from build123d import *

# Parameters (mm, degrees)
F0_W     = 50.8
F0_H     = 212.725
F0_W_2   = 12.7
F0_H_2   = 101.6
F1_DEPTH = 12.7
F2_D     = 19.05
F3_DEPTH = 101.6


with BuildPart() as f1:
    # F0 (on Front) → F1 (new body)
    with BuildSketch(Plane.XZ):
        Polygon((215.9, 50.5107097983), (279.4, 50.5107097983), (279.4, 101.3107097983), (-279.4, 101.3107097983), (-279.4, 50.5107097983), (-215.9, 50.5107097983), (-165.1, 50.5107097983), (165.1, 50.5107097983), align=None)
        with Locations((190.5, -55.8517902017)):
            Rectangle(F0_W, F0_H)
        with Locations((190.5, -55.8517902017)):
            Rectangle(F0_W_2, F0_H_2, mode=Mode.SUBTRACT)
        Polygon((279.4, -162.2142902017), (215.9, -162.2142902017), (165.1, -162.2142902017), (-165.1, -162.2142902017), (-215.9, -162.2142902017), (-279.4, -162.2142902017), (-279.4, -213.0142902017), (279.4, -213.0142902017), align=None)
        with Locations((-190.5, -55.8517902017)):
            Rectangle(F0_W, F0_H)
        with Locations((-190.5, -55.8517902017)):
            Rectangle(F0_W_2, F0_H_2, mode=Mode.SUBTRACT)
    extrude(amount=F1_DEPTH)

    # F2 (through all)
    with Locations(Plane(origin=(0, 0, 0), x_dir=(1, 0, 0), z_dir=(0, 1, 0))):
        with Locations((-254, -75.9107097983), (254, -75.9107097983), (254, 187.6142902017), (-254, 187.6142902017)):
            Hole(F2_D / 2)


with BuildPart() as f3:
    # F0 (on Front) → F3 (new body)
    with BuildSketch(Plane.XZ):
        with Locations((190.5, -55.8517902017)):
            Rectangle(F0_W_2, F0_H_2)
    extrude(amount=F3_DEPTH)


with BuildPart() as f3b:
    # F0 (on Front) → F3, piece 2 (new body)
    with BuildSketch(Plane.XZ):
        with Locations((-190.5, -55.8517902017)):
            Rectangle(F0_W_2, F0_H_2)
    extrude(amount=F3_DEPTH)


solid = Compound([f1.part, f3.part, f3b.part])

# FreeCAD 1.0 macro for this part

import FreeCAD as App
import Part
import Sketcher

V = App.Vector
Q = App.Units.Quantity

doc = App.newDocument("Part")
params = doc.addObject("Spreadsheet::Sheet", "Params")
for row, (alias, value) in enumerate([
    ("sketch1_width", "22 in"),
    ("sketch1_width2", "13 in"),
    ("sketch1_height", "2 in"),
    ("sketch1_height2", "4 in"),
    ("sketch1_width3", "2.5 in"),
    ("pad1_length", "0.5 in"),
    ("sketch2_diameter", "0.75 in"),
    ("hole_diameter", "0.75 in"),
    ("sketch3_height", "4 in"),
    ("sketch3_width", "0.5 in"),
    ("pad2_length", "4 in"),
    ("sketch4_height", "4 in"),
    ("sketch4_width", "0.5 in"),
    ("pad3_length", "4 in"),
], start=1):
    params.set(f"A{row}", alias)
    params.set(f"B{row}", "=" + value)
    params.setAlias(f"B{row}", alias)

body = doc.addObject("PartDesign::Body", "Body")

# Sketch on XZ plane
sketch1 = doc.addObject("Sketcher::SketchObject", "Sketch")
body.addObject(sketch1)
sketch1.AttachmentSupport = (doc.XZ_Plane, [""])
sketch1.MapMode = "FlatFace"
sketch1.addGeometry(Part.LineSegment(V(279, 51, 0), V(279, 101, 0)), False)
sketch1.addGeometry(Part.LineSegment(V(279, 101, 0), V(-279, 101, 0)), False)
sketch1.addGeometry(Part.LineSegment(V(-279, 101, 0), V(-279, 51, 0)), False)
sketch1.addGeometry(Part.LineSegment(V(-279, 51, 0), V(-216, 51, 0)), False)
sketch1.addGeometry(Part.LineSegment(V(-216, 51, 0), V(-216, -162, 0)), False)
sketch1.addGeometry(Part.LineSegment(V(-216, -162, 0), V(-279, -162, 0)), False)
sketch1.addGeometry(Part.LineSegment(V(-279, -162, 0), V(-279, -213, 0)), False)
sketch1.addGeometry(Part.LineSegment(V(-279, -213, 0), V(279, -213, 0)), False)
sketch1.addGeometry(Part.LineSegment(V(279, -213, 0), V(279, -162, 0)), False)
sketch1.addGeometry(Part.LineSegment(V(279, -162, 0), V(216, -162, 0)), False)
sketch1.addGeometry(Part.LineSegment(V(216, -162, 0), V(216, 51, 0)), False)
sketch1.addGeometry(Part.LineSegment(V(216, 51, 0), V(279, 51, 0)), False)
sketch1.addGeometry(Part.LineSegment(V(-184, -107, 0), V(-197, -107, 0)), False)
sketch1.addGeometry(Part.LineSegment(V(-197, -107, 0), V(-197, -5, 0)), False)
sketch1.addGeometry(Part.LineSegment(V(-197, -5, 0), V(-184, -5, 0)), False)
sketch1.addGeometry(Part.LineSegment(V(-184, -5, 0), V(-184, -107, 0)), False)
sketch1.addGeometry(Part.LineSegment(V(-165, 51, 0), V(165, 51, 0)), False)
sketch1.addGeometry(Part.LineSegment(V(165, 51, 0), V(165, -162, 0)), False)
sketch1.addGeometry(Part.LineSegment(V(165, -162, 0), V(-165, -162, 0)), False)
sketch1.addGeometry(Part.LineSegment(V(-165, -162, 0), V(-165, 51, 0)), False)
sketch1.addGeometry(Part.LineSegment(V(197, -107, 0), V(184, -107, 0)), False)
sketch1.addGeometry(Part.LineSegment(V(184, -107, 0), V(184, -5, 0)), False)
sketch1.addGeometry(Part.LineSegment(V(184, -5, 0), V(197, -5, 0)), False)
sketch1.addGeometry(Part.LineSegment(V(197, -5, 0), V(197, -107, 0)), False)
sketch1.addConstraint(Sketcher.Constraint("Coincident", 0, 2, 1, 1))
sketch1.addConstraint(Sketcher.Constraint("Coincident", 1, 2, 2, 1))
sketch1.addConstraint(Sketcher.Constraint("Coincident", 2, 2, 3, 1))
sketch1.addConstraint(Sketcher.Constraint("Coincident", 3, 2, 4, 1))
sketch1.addConstraint(Sketcher.Constraint("Coincident", 4, 2, 5, 1))
sketch1.addConstraint(Sketcher.Constraint("Coincident", 5, 2, 6, 1))
sketch1.addConstraint(Sketcher.Constraint("Coincident", 6, 2, 7, 1))
sketch1.addConstraint(Sketcher.Constraint("Coincident", 7, 2, 8, 1))
sketch1.addConstraint(Sketcher.Constraint("Coincident", 8, 2, 9, 1))
sketch1.addConstraint(Sketcher.Constraint("Coincident", 9, 2, 10, 1))
sketch1.addConstraint(Sketcher.Constraint("Coincident", 10, 2, 11, 1))
sketch1.addConstraint(Sketcher.Constraint("Coincident", 11, 2, 0, 1))
sketch1.addConstraint(Sketcher.Constraint("Coincident", 12, 2, 13, 1))
sketch1.addConstraint(Sketcher.Constraint("Coincident", 13, 2, 14, 1))
sketch1.addConstraint(Sketcher.Constraint("Coincident", 14, 2, 15, 1))
sketch1.addConstraint(Sketcher.Constraint("Coincident", 15, 2, 12, 1))
sketch1.addConstraint(Sketcher.Constraint("Coincident", 16, 2, 17, 1))
sketch1.addConstraint(Sketcher.Constraint("Coincident", 17, 2, 18, 1))
sketch1.addConstraint(Sketcher.Constraint("Coincident", 18, 2, 19, 1))
sketch1.addConstraint(Sketcher.Constraint("Coincident", 19, 2, 16, 1))
sketch1.addConstraint(Sketcher.Constraint("Coincident", 20, 2, 21, 1))
sketch1.addConstraint(Sketcher.Constraint("Coincident", 21, 2, 22, 1))
sketch1.addConstraint(Sketcher.Constraint("Coincident", 22, 2, 23, 1))
sketch1.addConstraint(Sketcher.Constraint("Coincident", 23, 2, 20, 1))
sketch1.addConstraint(Sketcher.Constraint("Vertical", 0))
sketch1.addConstraint(Sketcher.Constraint("Horizontal", 1))
sketch1.addConstraint(Sketcher.Constraint("Vertical", 2))
sketch1.addConstraint(Sketcher.Constraint("Horizontal", 3))
sketch1.addConstraint(Sketcher.Constraint("Vertical", 4))
sketch1.addConstraint(Sketcher.Constraint("Horizontal", 5))
sketch1.addConstraint(Sketcher.Constraint("Vertical", 6))
sketch1.addConstraint(Sketcher.Constraint("Horizontal", 7))
sketch1.addConstraint(Sketcher.Constraint("Vertical", 8))
sketch1.addConstraint(Sketcher.Constraint("Horizontal", 9))
sketch1.addConstraint(Sketcher.Constraint("Vertical", 10))
sketch1.addConstraint(Sketcher.Constraint("Horizontal", 11))
sketch1.addConstraint(Sketcher.Constraint("Horizontal", 12))
sketch1.addConstraint(Sketcher.Constraint("Vertical", 13))
sketch1.addConstraint(Sketcher.Constraint("Horizontal", 14))
sketch1.addConstraint(Sketcher.Constraint("Vertical", 15))
sketch1.addConstraint(Sketcher.Constraint("Horizontal", 16))
sketch1.addConstraint(Sketcher.Constraint("Vertical", 17))
sketch1.addConstraint(Sketcher.Constraint("Horizontal", 18))
sketch1.addConstraint(Sketcher.Constraint("Vertical", 19))
sketch1.addConstraint(Sketcher.Constraint("Horizontal", 20))
sketch1.addConstraint(Sketcher.Constraint("Vertical", 21))
sketch1.addConstraint(Sketcher.Constraint("Horizontal", 22))
sketch1.addConstraint(Sketcher.Constraint("Vertical", 23))
sketch1.addConstraint(Sketcher.Constraint("Symmetric", 5, 2, 8, 2, -2))
sketch1.addConstraint(Sketcher.Constraint("Symmetric", 3, 2, 10, 2, -2))
sketch1.addConstraint(Sketcher.Constraint("Symmetric", 15, 2, 20, 2, -2))
sketch1.addConstraint(Sketcher.Constraint("Symmetric", 13, 2, 22, 2, -2))
sketch1.addConstraint(Sketcher.Constraint("Horizontal", 11, 2, 16, 2))
sketch1.addConstraint(Sketcher.Constraint("Horizontal", 9, 2, 17, 2))
sketch1.addConstraint(Sketcher.Constraint("Vertical", 2, 2, 5, 2))
sketch1.addConstraint(Sketcher.Constraint("Vertical", 0, 2, 7, 2))
sketch1.addConstraint(Sketcher.Constraint("Equal", 2, 6))
sketch1.addConstraint(Sketcher.Constraint("DistanceX", 1, 2, 1, 1, Q("22 in")))
sketch1.addConstraint(Sketcher.Constraint("DistanceX", 16, 1, 16, 2, Q("13 in")))
sketch1.addConstraint(Sketcher.Constraint("DistanceY", 0, 1, 0, 2, Q("2 in")))
sketch1.addConstraint(Sketcher.Constraint("DistanceY", 13, 1, 13, 2, Q("4 in")))
sketch1.addConstraint(Sketcher.Constraint("DistanceX", 3, 1, 3, 2, Q("2.5 in")))
sketch1.addConstraint(Sketcher.Constraint("DistanceX", 12, 2, 12, 1, Q("0.5 in")))
sketch1.addConstraint(Sketcher.Constraint("DistanceX", 16, 2, 10, 2, Q("2 in")))
sketch1.addConstraint(Sketcher.Constraint("DistanceY", 4, 2, 4, 1, Q("8.375 in")))
sketch1.addConstraint(Sketcher.Constraint("DistanceX", 12, 2, -1, 1, Q("7.75 in")))
sketch1.addConstraint(Sketcher.Constraint("DistanceY", 4, 2, 12, 2, Q("2.1875 in")))
sketch1.addConstraint(Sketcher.Constraint("DistanceY", -1, 1, 0, 2, Q("101.31071 mm")))
sketch1.setExpression("Constraints[57]", "Params.sketch1_width")
sketch1.setExpression("Constraints[58]", "Params.sketch1_width2")
sketch1.setExpression("Constraints[59]", "Params.sketch1_height")
sketch1.setExpression("Constraints[60]", "Params.sketch1_height2")
sketch1.setExpression("Constraints[61]", "Params.sketch1_width3")
pad1 = doc.addObject("PartDesign::Pad", "Pad")
body.addObject(pad1)
pad1.Profile = sketch1
pad1.setExpression("Length", "Params.pad1_length")

# Sketch on XZ plane
sketch2 = doc.addObject("Sketcher::SketchObject", "Sketch001")
body.addObject(sketch2)
sketch2.AttachmentSupport = (doc.XZ_Plane, [""])
sketch2.MapMode = "FlatFace"
sketch2.addGeometry(Part.Circle(V(-254, 76, 0), V(0, 0, 1), 10), False)
sketch2.addGeometry(Part.Circle(V(254, 76, 0), V(0, 0, 1), 10), False)
sketch2.addGeometry(Part.Circle(V(254, -188, 0), V(0, 0, 1), 10), False)
sketch2.addGeometry(Part.Circle(V(-254, -188, 0), V(0, 0, 1), 10), False)
sketch2.addConstraint(Sketcher.Constraint("Equal", 0, 1))
sketch2.addConstraint(Sketcher.Constraint("Equal", 1, 2))
sketch2.addConstraint(Sketcher.Constraint("Equal", 2, 3))
sketch2.addConstraint(Sketcher.Constraint("Symmetric", 0, 3, 1, 3, -2))
sketch2.addConstraint(Sketcher.Constraint("Symmetric", 2, 3, 3, 3, -2))
sketch2.addConstraint(Sketcher.Constraint("Vertical", 1, 3, 2, 3))
sketch2.addConstraint(Sketcher.Constraint("Diameter", 0, Q("0.75 in")))
sketch2.addConstraint(Sketcher.Constraint("DistanceX", 0, 3, -1, 1, Q("10 in")))
sketch2.addConstraint(Sketcher.Constraint("DistanceY", 2, 3, 1, 3, Q("10.375 in")))
sketch2.addConstraint(Sketcher.Constraint("DistanceY", -1, 1, 0, 3, Q("75.91071 mm")))
sketch2.setExpression("Constraints[6]", "Params.sketch2_diameter")
doc.recompute()
hole = doc.addObject("PartDesign::Hole", "Hole")
body.addObject(hole)
hole.Profile = sketch2
hole.ThreadType = "None"
hole.setExpression("Diameter", "Params.hole_diameter")
hole.DepthType = "ThroughAll"
hole.Reversed = True
body2 = doc.addObject("PartDesign::Body", "Body001")

# Sketch on XZ plane
sketch3 = doc.addObject("Sketcher::SketchObject", "Sketch002")
body2.addObject(sketch3)
sketch3.AttachmentSupport = (doc.getObject("XZ_Plane001"), [""])
sketch3.MapMode = "FlatFace"
sketch3.addGeometry(Part.LineSegment(V(184, -5, 0), V(184, -107, 0)), False)
sketch3.addGeometry(Part.LineSegment(V(184, -107, 0), V(197, -107, 0)), False)
sketch3.addGeometry(Part.LineSegment(V(197, -107, 0), V(197, -5, 0)), False)
sketch3.addGeometry(Part.LineSegment(V(197, -5, 0), V(184, -5, 0)), False)
sketch3.addConstraint(Sketcher.Constraint("Coincident", 0, 2, 1, 1))
sketch3.addConstraint(Sketcher.Constraint("Coincident", 1, 2, 2, 1))
sketch3.addConstraint(Sketcher.Constraint("Coincident", 2, 2, 3, 1))
sketch3.addConstraint(Sketcher.Constraint("Coincident", 3, 2, 0, 1))
sketch3.addConstraint(Sketcher.Constraint("Vertical", 0))
sketch3.addConstraint(Sketcher.Constraint("Horizontal", 1))
sketch3.addConstraint(Sketcher.Constraint("Vertical", 2))
sketch3.addConstraint(Sketcher.Constraint("Horizontal", 3))
sketch3.addConstraint(Sketcher.Constraint("DistanceY", 0, 2, 0, 1, Q("4 in")))
sketch3.addConstraint(Sketcher.Constraint("DistanceX", 1, 1, 1, 2, Q("0.5 in")))
sketch3.addConstraint(Sketcher.Constraint("DistanceX", -1, 1, 0, 2, Q("7.25 in")))
sketch3.addConstraint(Sketcher.Constraint("DistanceY", 0, 2, -1, 1, Q("106.65179 mm")))
sketch3.setExpression("Constraints[8]", "Params.sketch3_height")
sketch3.setExpression("Constraints[9]", "Params.sketch3_width")
pad2 = doc.addObject("PartDesign::Pad", "Pad001")
body2.addObject(pad2)
pad2.Profile = sketch3
pad2.setExpression("Length", "Params.pad2_length")
body3 = doc.addObject("PartDesign::Body", "Body002")

# Sketch on XZ plane
sketch4 = doc.addObject("Sketcher::SketchObject", "Sketch003")
body3.addObject(sketch4)
sketch4.AttachmentSupport = (doc.getObject("XZ_Plane002"), [""])
sketch4.MapMode = "FlatFace"
sketch4.addGeometry(Part.LineSegment(V(-197, -5, 0), V(-197, -107, 0)), False)
sketch4.addGeometry(Part.LineSegment(V(-197, -107, 0), V(-184, -107, 0)), False)
sketch4.addGeometry(Part.LineSegment(V(-184, -107, 0), V(-184, -5, 0)), False)
sketch4.addGeometry(Part.LineSegment(V(-184, -5, 0), V(-197, -5, 0)), False)
sketch4.addConstraint(Sketcher.Constraint("Coincident", 0, 2, 1, 1))
sketch4.addConstraint(Sketcher.Constraint("Coincident", 1, 2, 2, 1))
sketch4.addConstraint(Sketcher.Constraint("Coincident", 2, 2, 3, 1))
sketch4.addConstraint(Sketcher.Constraint("Coincident", 3, 2, 0, 1))
sketch4.addConstraint(Sketcher.Constraint("Vertical", 0))
sketch4.addConstraint(Sketcher.Constraint("Horizontal", 1))
sketch4.addConstraint(Sketcher.Constraint("Vertical", 2))
sketch4.addConstraint(Sketcher.Constraint("Horizontal", 3))
sketch4.addConstraint(Sketcher.Constraint("DistanceY", 0, 2, 0, 1, Q("4 in")))
sketch4.addConstraint(Sketcher.Constraint("DistanceX", 1, 1, 1, 2, Q("0.5 in")))
sketch4.addConstraint(Sketcher.Constraint("DistanceX", 0, 2, -1, 1, Q("7.75 in")))
sketch4.addConstraint(Sketcher.Constraint("DistanceY", 0, 2, -1, 1, Q("106.65179 mm")))
sketch4.setExpression("Constraints[8]", "Params.sketch4_height")
sketch4.setExpression("Constraints[9]", "Params.sketch4_width")
pad3 = doc.addObject("PartDesign::Pad", "Pad002")
body3.addObject(pad3)
pad3.Profile = sketch4
pad3.setExpression("Length", "Params.pad3_length")

doc.recompute()
